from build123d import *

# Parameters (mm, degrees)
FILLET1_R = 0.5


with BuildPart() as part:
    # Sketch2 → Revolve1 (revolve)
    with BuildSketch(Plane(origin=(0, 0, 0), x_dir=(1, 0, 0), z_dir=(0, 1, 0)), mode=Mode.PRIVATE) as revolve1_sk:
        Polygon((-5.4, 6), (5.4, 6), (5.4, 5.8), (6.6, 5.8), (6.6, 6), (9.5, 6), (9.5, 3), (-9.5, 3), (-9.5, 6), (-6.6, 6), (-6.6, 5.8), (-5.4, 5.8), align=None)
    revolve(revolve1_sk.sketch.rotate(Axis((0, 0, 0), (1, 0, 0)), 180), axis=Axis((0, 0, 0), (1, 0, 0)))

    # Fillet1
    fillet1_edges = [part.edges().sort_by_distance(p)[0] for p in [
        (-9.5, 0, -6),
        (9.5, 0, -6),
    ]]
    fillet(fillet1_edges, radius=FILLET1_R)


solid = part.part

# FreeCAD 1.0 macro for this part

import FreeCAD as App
import Part
import Sketcher
from FreeCAD import Vector


def edges_at(feature, points):
    """Names of the edges that pass closest to the given points."""
    edges = feature.Shape.Edges
    near = lambda p: min(range(len(edges)), key=lambda i: edges[i].distToShape(Part.Vertex(*p))[0])
    return sorted({f"Edge{near(p) + 1}" for p in points})


def add_polygon(sketch, points):
    """Adds a closed chain of lines whose ends are joined by coincident constraints."""
    first, n = sketch.GeometryCount, len(points)
    for a, b in zip(points, points[1:] + points[:1]):
        sketch.addGeometry(Part.LineSegment(App.Vector(*a, 0), App.Vector(*b, 0)), False)
    for i in range(n):
        sketch.addConstraint(Sketcher.Constraint("Coincident", first + i, 2, first + (i + 1) % n, 1))

doc = App.newDocument("Part")
body = doc.addObject("PartDesign::Body", "Body")

# Sketch on XZ plane
sketch1 = body.newObject("Sketcher::SketchObject", "Sketch")
sketch1.AttachmentSupport = (doc.getObject("XZ_Plane"), [""])
sketch1.MapMode = "FlatFace"
add_polygon(sketch1, [(5.4, -6), (-5.4, -6), (-5.4, -5.8), (-6.6, -5.8), (-6.6, -6), (-9.5, -6), (-9.5, -3), (9.5, -3), (9.5, -6), (6.6, -6), (6.6, -5.8), (5.4, -5.8)])  # lines 0-11
sketch1.addConstraint([
    Sketcher.Constraint("Horizontal", 0),
    Sketcher.Constraint("Vertical", 1),
    Sketcher.Constraint("Horizontal", 2),
    Sketcher.Constraint("Vertical", 3),
    Sketcher.Constraint("Horizontal", 4),
    Sketcher.Constraint("Vertical", 5),
    Sketcher.Constraint("Horizontal", 6),
    Sketcher.Constraint("Vertical", 7),
    Sketcher.Constraint("Horizontal", 8),
    Sketcher.Constraint("Vertical", 9),
    Sketcher.Constraint("Horizontal", 10),
    Sketcher.Constraint("Vertical", 11),
    Sketcher.Constraint("Symmetric", 4, 2, 7, 2, -2),
    Sketcher.Constraint("Symmetric", 2, 2, 9, 2, -2),
    Sketcher.Constraint("Horizontal", 0, 2, 3, 2),
    Sketcher.Constraint("Equal", 2, 10),
    Sketcher.Constraint("DistanceX", 6, 1, 6, 2, 19.0),
    Sketcher.Constraint("DistanceY", 5, 1, 5, 2, 3.0),
    Sketcher.Constraint("DistanceX", 0, 2, 0, 1, 10.8),
    Sketcher.Constraint("DistanceX", 2, 2, 2, 1, 1.2),
    Sketcher.Constraint("DistanceY", 1, 1, 1, 2, 0.2),
    Sketcher.Constraint("DistanceY", 0, 2, -1, 1, 6.0),
])
revolution = body.newObject("PartDesign::Revolution", "Revolution")
revolution.Profile = sketch1
revolution.ReferenceAxis = (sketch1, ["H_Axis"])
revolution.Angle = 360
doc.recompute()

fillet = body.newObject("PartDesign::Fillet", "Fillet")
fillet.Base = (revolution, edges_at(revolution, [(-9.5, 0, -6), (9.5, 0, -6)]))
fillet.Radius = 0.5

doc.recompute()
